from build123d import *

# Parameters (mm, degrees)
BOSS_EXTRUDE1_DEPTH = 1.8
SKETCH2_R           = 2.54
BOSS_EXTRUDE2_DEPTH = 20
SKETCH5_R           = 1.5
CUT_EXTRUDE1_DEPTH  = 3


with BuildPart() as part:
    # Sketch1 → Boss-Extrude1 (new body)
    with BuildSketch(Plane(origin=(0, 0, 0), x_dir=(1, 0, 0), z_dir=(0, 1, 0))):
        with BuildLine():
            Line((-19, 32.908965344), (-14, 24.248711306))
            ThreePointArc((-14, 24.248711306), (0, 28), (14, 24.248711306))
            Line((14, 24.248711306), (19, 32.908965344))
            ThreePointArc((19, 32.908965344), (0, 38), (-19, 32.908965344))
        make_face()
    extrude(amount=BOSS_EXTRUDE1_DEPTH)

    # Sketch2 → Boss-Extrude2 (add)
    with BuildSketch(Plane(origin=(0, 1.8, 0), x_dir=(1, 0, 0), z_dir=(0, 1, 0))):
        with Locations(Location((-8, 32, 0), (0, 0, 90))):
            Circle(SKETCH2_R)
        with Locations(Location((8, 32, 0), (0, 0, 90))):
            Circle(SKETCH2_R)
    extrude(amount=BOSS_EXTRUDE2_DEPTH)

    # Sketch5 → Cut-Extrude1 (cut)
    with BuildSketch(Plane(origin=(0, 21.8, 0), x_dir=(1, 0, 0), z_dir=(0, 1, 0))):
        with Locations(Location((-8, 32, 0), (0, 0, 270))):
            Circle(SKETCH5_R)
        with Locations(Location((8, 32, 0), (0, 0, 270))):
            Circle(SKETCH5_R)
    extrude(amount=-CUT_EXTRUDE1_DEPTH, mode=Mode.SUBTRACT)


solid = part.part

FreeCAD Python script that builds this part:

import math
import FreeCAD as App
import Part
import Sketcher
Q = App.Units.Quantity

doc = App.newDocument("Part")
body = doc.addObject("PartDesign::Body", "Body")

# Sketch on XZ plane
sketch1 = body.newObject("Sketcher::SketchObject", "Sketch")
sketch1.AttachmentSupport = (doc.getObject("XZ_Plane"), [""])
sketch1.MapMode = "FlatFace"
sketch1.addGeometry([
    Part.LineSegment(App.Vector(-19, -33, 0), App.Vector(-14, -24, 0)),
    Part.ArcOfCircle(Part.Circle(App.Vector(0, 0, 0), App.Vector(0, 0, 1), 28), math.radians(-120), math.radians(-60)),
    Part.LineSegment(App.Vector(14, -24, 0), App.Vector(19, -33, 0)),
    Part.ArcOfCircle(Part.Circle(App.Vector(0, 0, 0), App.Vector(0, 0, 1), 38), math.radians(-120), math.radians(-60)),
], False)
sketch1.addConstraint([
    Sketcher.Constraint("Coincident", 0, 2, 1, 1),
    Sketcher.Constraint("Coincident", 1, 2, 2, 1),
    Sketcher.Constraint("Coincident", 2, 2, 3, 2),
    Sketcher.Constraint("Coincident", 3, 1, 0, 1),
    Sketcher.Constraint("Coincident", 1, 3, -1, 1),
    Sketcher.Constraint("Coincident", 3, 3, -1, 1),
    Sketcher.Constraint("Horizontal", 0, 2, 1, 2),
    Sketcher.Constraint("Horizontal", 2, 2, 3, 1),
    Sketcher.Constraint("Radius", 1, Q("28 mm")),
    Sketcher.Constraint("Radius", 3, Q("38 mm")),
    Sketcher.Constraint("Angle", 0, Q("60 deg")),
    Sketcher.Constraint("DistanceX", 0, 2, -1, 1, Q("14 mm")),
])
pad1 = body.newObject("PartDesign::Pad", "Pad")
pad1.Profile = sketch1
pad1.Length = 1.8
pad1.Reversed = True

# Sketch on XZ plane
sketch2 = body.newObject("Sketcher::SketchObject", "Sketch001")
sketch2.AttachmentSupport = (doc.getObject("XZ_Plane"), [""])
sketch2.MapMode = "FlatFace"
sketch2.AttachmentOffset = App.Placement(App.Vector(0, 0, -1.8), App.Rotation())
sketch2.addGeometry([
    Part.Circle(App.Vector(-8, -32, 0), App.Vector(0, 0, 1), 2.5),
    Part.Circle(App.Vector(8, -32, 0), App.Vector(0, 0, 1), 2.5),
], False)
sketch2.addConstraint([
    Sketcher.Constraint("Equal", 0, 1),
    Sketcher.Constraint("Symmetric", 0, 3, 1, 3, -2),
    Sketcher.Constraint("Diameter", 0, Q("5.08 mm")),
    Sketcher.Constraint("DistanceX", 0, 3, -1, 1, Q("8 mm")),
    Sketcher.Constraint("DistanceY", 0, 3, -1, 1, Q("32 mm")),
])
pad2 = body.newObject("PartDesign::Pad", "Pad001")
pad2.Profile = sketch2
pad2.Length = 20
pad2.Reversed = True

# Sketch on XZ plane
sketch3 = body.newObject("Sketcher::SketchObject", "Sketch002")
sketch3.AttachmentSupport = (doc.getObject("XZ_Plane"), [""])
sketch3.MapMode = "FlatFace"
sketch3.AttachmentOffset = App.Placement(App.Vector(0, 0, -21.8), App.Rotation())
sketch3.addGeometry([
    Part.Circle(App.Vector(-8, -32, 0), App.Vector(0, 0, 1), 1.5),
    Part.Circle(App.Vector(8, -32, 0), App.Vector(0, 0, 1), 1.5),
], False)
sketch3.addConstraint([
    Sketcher.Constraint("Equal", 0, 1),
    Sketcher.Constraint("Symmetric", 0, 3, 1, 3, -2),
    Sketcher.Constraint("Diameter", 0, Q("3 mm")),
    Sketcher.Constraint("DistanceX", 0, 3, -1, 1, Q("8 mm")),
    Sketcher.Constraint("DistanceY", 0, 3, -1, 1, Q("32 mm")),
])
pocket1 = body.newObject("PartDesign::Pocket", "Pocket")
pocket1.Profile = sketch3
pocket1.Length = 3
pocket1.Reversed = True

doc.recompute()
